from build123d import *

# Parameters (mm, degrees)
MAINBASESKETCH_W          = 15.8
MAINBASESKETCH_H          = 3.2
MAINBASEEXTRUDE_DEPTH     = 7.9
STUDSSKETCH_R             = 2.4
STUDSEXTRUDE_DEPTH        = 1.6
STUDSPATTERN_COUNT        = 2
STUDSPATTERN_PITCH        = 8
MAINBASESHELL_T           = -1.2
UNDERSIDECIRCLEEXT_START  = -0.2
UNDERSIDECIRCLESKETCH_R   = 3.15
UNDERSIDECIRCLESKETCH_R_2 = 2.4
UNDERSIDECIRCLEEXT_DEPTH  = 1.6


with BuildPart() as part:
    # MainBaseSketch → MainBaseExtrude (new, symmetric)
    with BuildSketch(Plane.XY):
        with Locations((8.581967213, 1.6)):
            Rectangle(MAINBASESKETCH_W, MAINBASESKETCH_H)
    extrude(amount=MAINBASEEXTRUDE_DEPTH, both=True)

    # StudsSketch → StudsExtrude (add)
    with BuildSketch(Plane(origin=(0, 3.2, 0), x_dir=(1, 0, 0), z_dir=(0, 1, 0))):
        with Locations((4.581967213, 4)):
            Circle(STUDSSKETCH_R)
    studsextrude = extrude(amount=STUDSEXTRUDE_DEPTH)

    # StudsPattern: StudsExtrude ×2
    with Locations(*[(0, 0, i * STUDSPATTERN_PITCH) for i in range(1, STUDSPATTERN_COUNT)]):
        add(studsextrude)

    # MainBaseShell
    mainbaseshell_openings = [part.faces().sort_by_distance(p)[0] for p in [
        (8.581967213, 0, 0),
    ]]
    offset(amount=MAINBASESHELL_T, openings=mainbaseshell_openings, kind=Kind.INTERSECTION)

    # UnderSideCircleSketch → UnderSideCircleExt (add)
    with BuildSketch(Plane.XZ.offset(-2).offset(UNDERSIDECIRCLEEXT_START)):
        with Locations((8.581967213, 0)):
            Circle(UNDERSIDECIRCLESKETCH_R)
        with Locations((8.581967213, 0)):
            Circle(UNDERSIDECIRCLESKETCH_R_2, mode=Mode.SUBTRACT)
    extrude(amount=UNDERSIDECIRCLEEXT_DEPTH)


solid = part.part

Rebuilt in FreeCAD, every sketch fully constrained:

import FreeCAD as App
import Part
import Sketcher
from FreeCAD import Vector
Q = App.Units.Quantity


def faces_at(feature, points):
    """Names of the faces that lie closest to the given points."""
    faces = feature.Shape.Faces
    near = lambda p: min(range(len(faces)), key=lambda i: faces[i].distToShape(Part.Vertex(*p))[0])
    return sorted({f"Face{near(p) + 1}" for p in points})

doc = App.newDocument("Part")
params = doc.addObject("Spreadsheet::Sheet", "Params")
for row, (alias, value) in enumerate([
    ("sketch1_width", "15.8 mm"),
    ("sketch1_height", "3.2 mm"),
    ("pad1_length", "15.8 mm"),
    ("sketch2_diameter", "4.8 mm"),
    ("pad2_length", "1.6 mm"),
    ("linearpattern_pitch", "8 mm"),
    ("thickness_wall", "1.2 mm"),
    ("sketch3_diameter", "6.3 mm"),
    ("sketch3_diameter2", "4.8 mm"),
    ("pad3_length", "1.6 mm"),
], start=1):
    params.set(f"A{row}", alias)
    params.set(f"B{row}", "=" + value)
    params.setAlias(f"B{row}", alias)

body = doc.addObject("PartDesign::Body", "Body")

# Sketch on XY plane
sketch1 = doc.addObject("Sketcher::SketchObject", "Sketch")
body.addObject(sketch1)
sketch1.AttachmentSupport = (doc.XY_Plane, [""])
sketch1.MapMode = "FlatFace"
sketch1.addGeometry(Part.LineSegment(Vector(0.681967, 3.2, 0), Vector(0.681967, 0, 0)), False)
sketch1.addGeometry(Part.LineSegment(Vector(0.681967, 0, 0), Vector(16.481967, 0, 0)), False)
sketch1.addGeometry(Part.LineSegment(Vector(16.481967, 0, 0), Vector(16.481967, 3.2, 0)), False)
sketch1.addGeometry(Part.LineSegment(Vector(16.481967, 3.2, 0), Vector(0.681967, 3.2, 0)), False)
sketch1.addConstraint(Sketcher.Constraint("Coincident", 0, 2, 1, 1))
sketch1.addConstraint(Sketcher.Constraint("Coincident", 1, 2, 2, 1))
sketch1.addConstraint(Sketcher.Constraint("Coincident", 2, 2, 3, 1))
sketch1.addConstraint(Sketcher.Constraint("Coincident", 3, 2, 0, 1))
sketch1.addConstraint(Sketcher.Constraint("Vertical", 0))
sketch1.addConstraint(Sketcher.Constraint("Horizontal", 1))
sketch1.addConstraint(Sketcher.Constraint("Vertical", 2))
sketch1.addConstraint(Sketcher.Constraint("Horizontal", 3))
sketch1.addConstraint(Sketcher.Constraint("PointOnObject", 0, 2, -1))
sketch1.addConstraint(Sketcher.Constraint("DistanceX", 1, 1, 1, 2, Q("15.8 mm")))
sketch1.addConstraint(Sketcher.Constraint("DistanceY", 0, 2, 0, 1, Q("3.2 mm")))
sketch1.addConstraint(Sketcher.Constraint("DistanceX", -1, 1, 0, 2, Q("0.681967 mm")))
sketch1.setExpression("Constraints[9]", "Params.sketch1_width")
sketch1.setExpression("Constraints[10]", "Params.sketch1_height")
pad1 = doc.addObject("PartDesign::Pad", "Pad")
body.addObject(pad1)
pad1.Profile = sketch1
pad1.setExpression("Length", "Params.pad1_length")
pad1.Midplane = True

# Sketch on XZ plane
sketch2 = doc.addObject("Sketcher::SketchObject", "Sketch001")
body.addObject(sketch2)
sketch2.AttachmentSupport = (doc.XZ_Plane, [""])
sketch2.MapMode = "FlatFace"
sketch2.AttachmentOffset = App.Placement(Vector(0, 0, -3.2), App.Rotation())
sketch2.addGeometry(Part.Circle(Vector(4.581967, -4, 0), Vector(0, 0, 1), 2.4), False)
sketch2.addConstraint(Sketcher.Constraint("Diameter", 0, Q("4.8 mm")))
sketch2.addConstraint(Sketcher.Constraint("DistanceY", 0, 3, -1, 1, Q("4 mm")))
sketch2.addConstraint(Sketcher.Constraint("DistanceX", -1, 1, 0, 3, Q("4.581967 mm")))
sketch2.setExpression("Constraints[0]", "Params.sketch2_diameter")
pad2 = doc.addObject("PartDesign::Pad", "Pad001")
body.addObject(pad2)
pad2.Profile = sketch2
pad2.setExpression("Length", "Params.pad2_length")
pad2.Reversed = True
doc.recompute()

linearpattern = doc.addObject("PartDesign::LinearPattern", "LinearPattern")
body.addObject(linearpattern)
linearpattern.Originals = [pad2]
linearpattern.Direction = (doc.Z_Axis, [""])
linearpattern.Mode = "offset"
linearpattern.setExpression("Offset", "Params.linearpattern_pitch")
linearpattern.Occurrences = 2
body.Tip = linearpattern
doc.recompute()

thickness = doc.addObject("PartDesign::Thickness", "Thickness")
body.addObject(thickness)
thickness.Base = (linearpattern, faces_at(linearpattern, [(8.582, 0, 0)]))
thickness.setExpression("Value", "Params.thickness_wall")
thickness.Reversed = True
thickness.Join = "Intersection"

# Sketch on XZ plane
sketch3 = doc.addObject("Sketcher::SketchObject", "Sketch002")
body.addObject(sketch3)
sketch3.AttachmentSupport = (doc.XZ_Plane, [""])
sketch3.MapMode = "FlatFace"
sketch3.AttachmentOffset = App.Placement(Vector(0, 0, -2.2), App.Rotation())
sketch3.addGeometry(Part.Circle(Vector(8.581967, 0, 0), Vector(0, 0, 1), 3.15), False)
sketch3.addGeometry(Part.Circle(Vector(8.581967, 0, 0), Vector(0, 0, 1), 2.4), False)
sketch3.addConstraint(Sketcher.Constraint("Coincident", 1, 3, 0, 3))
sketch3.addConstraint(Sketcher.Constraint("PointOnObject", 0, 3, -1))
sketch3.addConstraint(Sketcher.Constraint("Diameter", 0, Q("6.3 mm")))
sketch3.addConstraint(Sketcher.Constraint("Diameter", 1, Q("4.8 mm")))
sketch3.addConstraint(Sketcher.Constraint("DistanceX", -1, 1, 0, 3, Q("8.581967 mm")))
sketch3.setExpression("Constraints[2]", "Params.sketch3_diameter")
sketch3.setExpression("Constraints[3]", "Params.sketch3_diameter2")
pad3 = doc.addObject("PartDesign::Pad", "Pad002")
body.addObject(pad3)
pad3.Profile = sketch3
pad3.setExpression("Length", "Params.pad3_length")

doc.recompute()
